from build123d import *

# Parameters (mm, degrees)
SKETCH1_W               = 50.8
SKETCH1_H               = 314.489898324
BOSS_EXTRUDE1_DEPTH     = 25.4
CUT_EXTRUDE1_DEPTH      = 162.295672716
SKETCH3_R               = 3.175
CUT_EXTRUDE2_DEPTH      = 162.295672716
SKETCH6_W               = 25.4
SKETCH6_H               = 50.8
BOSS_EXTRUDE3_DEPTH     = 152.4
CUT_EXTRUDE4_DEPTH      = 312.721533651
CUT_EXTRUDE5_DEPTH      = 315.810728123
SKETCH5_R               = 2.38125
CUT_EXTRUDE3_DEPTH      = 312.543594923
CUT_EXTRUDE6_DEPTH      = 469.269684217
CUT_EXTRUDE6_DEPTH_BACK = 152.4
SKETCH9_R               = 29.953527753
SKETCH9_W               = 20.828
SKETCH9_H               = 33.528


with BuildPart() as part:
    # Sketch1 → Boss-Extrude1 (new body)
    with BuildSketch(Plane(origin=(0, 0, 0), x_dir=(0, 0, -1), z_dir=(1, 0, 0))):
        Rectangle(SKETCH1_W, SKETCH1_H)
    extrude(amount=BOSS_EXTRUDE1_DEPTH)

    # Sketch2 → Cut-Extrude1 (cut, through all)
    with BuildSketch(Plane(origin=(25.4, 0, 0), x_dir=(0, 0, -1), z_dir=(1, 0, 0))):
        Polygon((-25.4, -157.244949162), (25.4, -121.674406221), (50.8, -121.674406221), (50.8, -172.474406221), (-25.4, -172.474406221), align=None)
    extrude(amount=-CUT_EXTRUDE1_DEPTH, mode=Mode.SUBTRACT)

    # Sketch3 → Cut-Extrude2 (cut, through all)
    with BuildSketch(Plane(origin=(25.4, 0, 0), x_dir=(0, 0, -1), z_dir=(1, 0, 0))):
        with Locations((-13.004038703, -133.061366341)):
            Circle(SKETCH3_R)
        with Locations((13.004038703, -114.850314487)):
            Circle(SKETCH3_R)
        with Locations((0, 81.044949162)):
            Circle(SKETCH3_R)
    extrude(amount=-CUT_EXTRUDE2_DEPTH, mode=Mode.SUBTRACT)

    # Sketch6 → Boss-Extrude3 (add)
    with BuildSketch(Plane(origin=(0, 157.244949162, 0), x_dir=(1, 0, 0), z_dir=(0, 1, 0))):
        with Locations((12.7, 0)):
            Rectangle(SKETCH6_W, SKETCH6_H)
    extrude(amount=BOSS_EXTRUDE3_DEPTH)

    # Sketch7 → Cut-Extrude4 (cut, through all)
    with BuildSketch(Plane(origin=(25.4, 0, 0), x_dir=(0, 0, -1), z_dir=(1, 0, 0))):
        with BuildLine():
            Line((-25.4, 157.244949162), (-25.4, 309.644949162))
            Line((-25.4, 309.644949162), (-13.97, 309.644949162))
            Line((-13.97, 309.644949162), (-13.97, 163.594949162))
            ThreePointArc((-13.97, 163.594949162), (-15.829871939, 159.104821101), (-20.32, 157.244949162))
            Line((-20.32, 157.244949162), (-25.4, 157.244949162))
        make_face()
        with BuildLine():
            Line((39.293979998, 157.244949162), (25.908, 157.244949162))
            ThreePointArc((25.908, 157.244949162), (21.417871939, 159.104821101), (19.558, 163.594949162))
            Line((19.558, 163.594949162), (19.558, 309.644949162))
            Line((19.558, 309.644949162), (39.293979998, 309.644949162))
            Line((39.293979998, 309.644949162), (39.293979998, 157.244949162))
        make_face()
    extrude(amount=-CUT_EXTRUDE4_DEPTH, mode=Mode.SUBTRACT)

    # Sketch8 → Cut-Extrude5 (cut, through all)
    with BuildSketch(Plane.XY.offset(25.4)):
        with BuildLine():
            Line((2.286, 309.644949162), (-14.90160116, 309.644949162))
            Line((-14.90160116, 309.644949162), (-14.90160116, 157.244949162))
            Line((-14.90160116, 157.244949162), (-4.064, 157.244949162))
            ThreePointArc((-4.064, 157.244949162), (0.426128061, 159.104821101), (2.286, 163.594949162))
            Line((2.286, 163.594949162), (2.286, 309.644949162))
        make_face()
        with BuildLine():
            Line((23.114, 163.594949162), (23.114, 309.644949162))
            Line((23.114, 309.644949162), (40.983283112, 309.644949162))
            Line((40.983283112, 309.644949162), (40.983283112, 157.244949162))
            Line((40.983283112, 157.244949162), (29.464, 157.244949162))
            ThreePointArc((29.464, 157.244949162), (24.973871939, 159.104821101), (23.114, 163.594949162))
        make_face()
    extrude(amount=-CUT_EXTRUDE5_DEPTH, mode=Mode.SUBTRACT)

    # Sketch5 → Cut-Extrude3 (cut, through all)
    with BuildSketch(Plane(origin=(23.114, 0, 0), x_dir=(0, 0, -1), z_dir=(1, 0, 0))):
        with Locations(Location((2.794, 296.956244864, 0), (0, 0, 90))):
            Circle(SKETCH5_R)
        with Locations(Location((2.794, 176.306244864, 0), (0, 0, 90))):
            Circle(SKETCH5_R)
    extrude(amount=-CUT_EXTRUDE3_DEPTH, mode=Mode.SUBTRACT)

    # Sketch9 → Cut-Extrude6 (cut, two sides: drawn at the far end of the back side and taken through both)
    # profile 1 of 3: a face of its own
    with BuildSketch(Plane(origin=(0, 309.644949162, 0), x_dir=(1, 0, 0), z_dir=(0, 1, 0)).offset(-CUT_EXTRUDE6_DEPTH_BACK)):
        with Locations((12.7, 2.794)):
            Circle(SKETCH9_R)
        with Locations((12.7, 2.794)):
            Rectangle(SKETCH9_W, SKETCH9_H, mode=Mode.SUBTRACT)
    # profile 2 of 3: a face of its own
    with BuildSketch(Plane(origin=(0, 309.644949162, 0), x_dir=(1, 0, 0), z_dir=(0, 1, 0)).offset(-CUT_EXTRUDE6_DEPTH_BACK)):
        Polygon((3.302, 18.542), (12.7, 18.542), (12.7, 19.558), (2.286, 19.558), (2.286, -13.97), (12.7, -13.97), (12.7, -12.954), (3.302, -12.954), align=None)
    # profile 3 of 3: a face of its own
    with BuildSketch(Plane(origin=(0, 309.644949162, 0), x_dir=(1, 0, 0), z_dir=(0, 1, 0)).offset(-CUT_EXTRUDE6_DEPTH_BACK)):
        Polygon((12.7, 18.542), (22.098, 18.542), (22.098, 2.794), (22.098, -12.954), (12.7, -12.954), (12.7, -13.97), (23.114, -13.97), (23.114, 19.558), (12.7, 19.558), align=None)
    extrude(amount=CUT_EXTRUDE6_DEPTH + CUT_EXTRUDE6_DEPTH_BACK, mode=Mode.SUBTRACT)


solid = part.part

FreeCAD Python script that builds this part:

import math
import FreeCAD as App
import Part
import Sketcher

V = App.Vector
Q = App.Units.Quantity


def add_polygon(sketch, points):
    """Adds a closed chain of lines whose ends are joined by coincident constraints."""
    first, n = sketch.GeometryCount, len(points)
    for a, b in zip(points, points[1:] + points[:1]):
        sketch.addGeometry(Part.LineSegment(App.Vector(*a, 0), App.Vector(*b, 0)), False)
    for i in range(n):
        sketch.addConstraint(Sketcher.Constraint("Coincident", first + i, 2, first + (i + 1) % n, 1))

doc = App.newDocument("Part")
body = doc.addObject("PartDesign::Body", "Body")

sketch1 = doc.addObject("Sketcher::SketchObject", "Sketch")
body.addObject(sketch1)
sketch1.AttachmentSupport = (doc.YZ_Plane, [""])
sketch1.MapMode = "FlatFace"
add_polygon(sketch1, [(157, 25), (-157, 25), (-157, -25), (157, -25)])
sketch1.addConstraint(Sketcher.Constraint("Horizontal", 0))
sketch1.addConstraint(Sketcher.Constraint("Vertical", 1))
sketch1.addConstraint(Sketcher.Constraint("Horizontal", 2))
sketch1.addConstraint(Sketcher.Constraint("Vertical", 3))
sketch1.addConstraint(Sketcher.Constraint("Symmetric", 0, 2, 2, 2, -1, 1))
sketch1.addConstraint(Sketcher.Constraint("DistanceY", 1, 2, 1, 1, Q("2 in")))
sketch1.addConstraint(Sketcher.Constraint("DistanceX", 0, 2, 0, 1, 314.489898))
pad1 = doc.addObject("PartDesign::Pad", "Pad")
body.addObject(pad1)
pad1.Profile = sketch1
pad1.Length = Q("1 in")

sketch2 = doc.addObject("Sketcher::SketchObject", "Sketch001")
body.addObject(sketch2)
sketch2.AttachmentSupport = (doc.YZ_Plane, [""])
sketch2.MapMode = "FlatFace"
sketch2.AttachmentOffset = App.Placement(V(0, 0, 1 * 25.4), App.Rotation())
add_polygon(sketch2, [(-122, -25), (-157, 25), (-172, 25), (-172, -51), (-122, -51)])
sketch2.addConstraint(Sketcher.Constraint("Horizontal", 1))
sketch2.addConstraint(Sketcher.Constraint("Vertical", 2))
sketch2.addConstraint(Sketcher.Constraint("Horizontal", 3))
sketch2.addConstraint(Sketcher.Constraint("Vertical", 4))
sketch2.addConstraint(Sketcher.Constraint("DistanceX", 3, 1, 3, 2, Q("2 in")))
sketch2.addConstraint(Sketcher.Constraint("DistanceY", 2, 2, 2, 1, Q("3 in")))
sketch2.addConstraint(Sketcher.Constraint("DistanceY", 4, 1, 4, 2, Q("1 in")))
sketch2.addConstraint(Sketcher.Constraint("DistanceY", -1, 1, 0, 2, Q("1 in")))
sketch2.addConstraint(Sketcher.Constraint("Angle", 0, Q("125 deg")))
sketch2.addConstraint(Sketcher.Constraint("DistanceX", 0, 2, -1, 1, 157.244949))
pocket1 = doc.addObject("PartDesign::Pocket", "Pocket")
body.addObject(pocket1)
pocket1.Profile = sketch2
pocket1.Type = "ThroughAll"

sketch3 = doc.addObject("Sketcher::SketchObject", "Sketch002")
body.addObject(sketch3)
sketch3.AttachmentSupport = (doc.YZ_Plane, [""])
sketch3.MapMode = "FlatFace"
sketch3.AttachmentOffset = App.Placement(V(0, 0, 1 * 25.4), App.Rotation())
sketch3.addGeometry(Part.Circle(V(-133.1, 13, 0), V(0, 0, 1), 3.2), False)
sketch3.addGeometry(Part.Circle(V(-114.9, -13, 0), V(0, 0, 1), 3.2), False)
sketch3.addGeometry(Part.Circle(V(81, 0, 0), V(0, 0, 1), 3.2), False)
sketch3.addConstraint(Sketcher.Constraint("Equal", 0, 1))
sketch3.addConstraint(Sketcher.Constraint("Equal", 1, 2))
sketch3.addConstraint(Sketcher.Constraint("PointOnObject", 2, 3, -1))
sketch3.addConstraint(Sketcher.Constraint("Diameter", 0, Q("0.25 in")))
sketch3.addConstraint(Sketcher.Constraint("DistanceY", -1, 1, 0, 3, 13.004039))
sketch3.addConstraint(Sketcher.Constraint("DistanceY", 1, 3, -1, 1, 13.004039))
sketch3.addConstraint(Sketcher.Constraint("DistanceX", -1, 1, 2, 3, 81.044949))
sketch3.addConstraint(Sketcher.Constraint("DistanceX", 0, 3, 1, 3, 18.211052))
sketch3.addConstraint(Sketcher.Constraint("DistanceX", 0, 3, -1, 1, 133.061366))
pocket2 = doc.addObject("PartDesign::Pocket", "Pocket001")
body.addObject(pocket2)
pocket2.Profile = sketch3
pocket2.Type = "ThroughAll"

sketch4 = doc.addObject("Sketcher::SketchObject", "Sketch003")
body.addObject(sketch4)
sketch4.AttachmentSupport = (doc.XZ_Plane, [""])
sketch4.MapMode = "FlatFace"
sketch4.AttachmentOffset = App.Placement(V(0, 0, -157.244949), App.Rotation())
add_polygon(sketch4, [(0, -25), (0, 25), (25, 25), (25, -25)])
sketch4.addConstraint(Sketcher.Constraint("Vertical", 0))
sketch4.addConstraint(Sketcher.Constraint("Horizontal", 1))
sketch4.addConstraint(Sketcher.Constraint("Vertical", 2))
sketch4.addConstraint(Sketcher.Constraint("Horizontal", 3))
sketch4.addConstraint(Sketcher.Constraint("Symmetric", 0, 2, 3, 2, -1, 1))
sketch4.addConstraint(Sketcher.Constraint("DistanceX", 1, 1, 1, 2, Q("1 in")))
sketch4.addConstraint(Sketcher.Constraint("DistanceY", 0, 1, 0, 2, Q("2 in")))
pad2 = doc.addObject("PartDesign::Pad", "Pad001")
body.addObject(pad2)
pad2.Profile = sketch4
pad2.Length = Q("6 in")
pad2.Reversed = True

sketch5 = doc.addObject("Sketcher::SketchObject", "Sketch004")
body.addObject(sketch5)
sketch5.AttachmentSupport = (doc.YZ_Plane, [""])
sketch5.MapMode = "FlatFace"
sketch5.AttachmentOffset = App.Placement(V(0, 0, 1 * 25.4), App.Rotation())
sketch5.addGeometry(Part.LineSegment(V(310, 25, 0), V(157, 25, 0)), False)
sketch5.addGeometry(Part.LineSegment(V(157, 25, 0), V(157, 20, 0)), False)
sketch5.addGeometry(Part.ArcOfCircle(Part.Circle(V(164, 20, 0), V(0, 0, 1), 6), math.radians(180), math.radians(270)), False)
sketch5.addGeometry(Part.LineSegment(V(164, 14, 0), V(310, 14, 0)), False)
sketch5.addGeometry(Part.LineSegment(V(310, 14, 0), V(310, 25, 0)), False)
sketch5.addGeometry(Part.LineSegment(V(157, -26, 0), V(157, -39, 0)), False)
sketch5.addGeometry(Part.LineSegment(V(157, -39, 0), V(310, -39, 0)), False)
sketch5.addGeometry(Part.LineSegment(V(310, -39, 0), V(310, -20, 0)), False)
sketch5.addGeometry(Part.LineSegment(V(310, -20, 0), V(164, -20, 0)), False)
sketch5.addGeometry(Part.ArcOfCircle(Part.Circle(V(164, -26, 0), V(0, 0, 1), 6), math.radians(90), math.radians(180)), False)
sketch5.addConstraint(Sketcher.Constraint("Coincident", 0, 2, 1, 1))
sketch5.addConstraint(Sketcher.Constraint("Tangent", 1, 2, 2, 1))
sketch5.addConstraint(Sketcher.Constraint("Tangent", 2, 2, 3, 1))
sketch5.addConstraint(Sketcher.Constraint("Coincident", 3, 2, 4, 1))
sketch5.addConstraint(Sketcher.Constraint("Coincident", 4, 2, 0, 1))
sketch5.addConstraint(Sketcher.Constraint("Coincident", 5, 2, 6, 1))
sketch5.addConstraint(Sketcher.Constraint("Coincident", 6, 2, 7, 1))
sketch5.addConstraint(Sketcher.Constraint("Coincident", 7, 2, 8, 1))
sketch5.addConstraint(Sketcher.Constraint("Tangent", 8, 2, 9, 1))
sketch5.addConstraint(Sketcher.Constraint("Tangent", 9, 2, 5, 1))
sketch5.addConstraint(Sketcher.Constraint("Horizontal", 0))
sketch5.addConstraint(Sketcher.Constraint("Vertical", 1))
sketch5.addConstraint(Sketcher.Constraint("Horizontal", 3))
sketch5.addConstraint(Sketcher.Constraint("Vertical", 4))
sketch5.addConstraint(Sketcher.Constraint("Vertical", 5))
sketch5.addConstraint(Sketcher.Constraint("Horizontal", 6))
sketch5.addConstraint(Sketcher.Constraint("Vertical", 7))
sketch5.addConstraint(Sketcher.Constraint("Horizontal", 8))
sketch5.addConstraint(Sketcher.Constraint("Equal", 2, 9))
sketch5.addConstraint(Sketcher.Constraint("Vertical", 2, 3, 9, 3))
sketch5.addConstraint(Sketcher.Constraint("Vertical", 4, 2, 6, 2))
sketch5.addConstraint(Sketcher.Constraint("DistanceX", 0, 2, 0, 1, Q("6 in")))
sketch5.addConstraint(Sketcher.Constraint("Radius", 2, Q("0.25 in")))
sketch5.addConstraint(Sketcher.Constraint("DistanceY", 1, 2, 1, 1, Q("0.2 in")))
sketch5.addConstraint(Sketcher.Constraint("DistanceY", -1, 1, 0, 2, Q("1 in")))
sketch5.addConstraint(Sketcher.Constraint("DistanceY", 9, 3, -1, 1, Q("1.02 in")))
sketch5.addConstraint(Sketcher.Constraint("DistanceY", 5, 2, 5, 1, 13.38598))
sketch5.addConstraint(Sketcher.Constraint("DistanceX", -1, 1, 2, 3, 163.594949))
pocket3 = doc.addObject("PartDesign::Pocket", "Pocket002")
body.addObject(pocket3)
pocket3.Profile = sketch5
pocket3.Type = "ThroughAll"

sketch6 = doc.addObject("Sketcher::SketchObject", "Sketch005")
body.addObject(sketch6)
sketch6.AttachmentSupport = (doc.XY_Plane, [""])
sketch6.MapMode = "FlatFace"
sketch6.AttachmentOffset = App.Placement(V(0, 0, 1 * 25.4), App.Rotation())
sketch6.addGeometry(Part.LineSegment(V(2, 310, 0), V(-15, 310, 0)), False)
sketch6.addGeometry(Part.LineSegment(V(-15, 310, 0), V(-15, 157, 0)), False)
sketch6.addGeometry(Part.LineSegment(V(-15, 157, 0), V(-4, 157, 0)), False)
sketch6.addGeometry(Part.ArcOfCircle(Part.Circle(V(-4, 164, 0), V(0, 0, 1), 6), math.radians(-90), math.radians(0)), False)
sketch6.addGeometry(Part.LineSegment(V(2, 164, 0), V(2, 310, 0)), False)
sketch6.addGeometry(Part.LineSegment(V(23, 310, 0), V(23, 164, 0)), False)
sketch6.addGeometry(Part.ArcOfCircle(Part.Circle(V(29, 164, 0), V(0, 0, 1), 6), math.radians(180), math.radians(270)), False)
sketch6.addGeometry(Part.LineSegment(V(29, 157, 0), V(41, 157, 0)), False)
sketch6.addGeometry(Part.LineSegment(V(41, 157, 0), V(41, 310, 0)), False)
sketch6.addGeometry(Part.LineSegment(V(41, 310, 0), V(23, 310, 0)), False)
sketch6.addConstraint(Sketcher.Constraint("Coincident", 0, 2, 1, 1))
sketch6.addConstraint(Sketcher.Constraint("Coincident", 1, 2, 2, 1))
sketch6.addConstraint(Sketcher.Constraint("Tangent", 2, 2, 3, 1))
sketch6.addConstraint(Sketcher.Constraint("Tangent", 3, 2, 4, 1))
sketch6.addConstraint(Sketcher.Constraint("Coincident", 4, 2, 0, 1))
sketch6.addConstraint(Sketcher.Constraint("Tangent", 5, 2, 6, 1))
sketch6.addConstraint(Sketcher.Constraint("Tangent", 6, 2, 7, 1))
sketch6.addConstraint(Sketcher.Constraint("Coincident", 7, 2, 8, 1))
sketch6.addConstraint(Sketcher.Constraint("Coincident", 8, 2, 9, 1))
sketch6.addConstraint(Sketcher.Constraint("Coincident", 9, 2, 5, 1))
sketch6.addConstraint(Sketcher.Constraint("Horizontal", 0))
sketch6.addConstraint(Sketcher.Constraint("Vertical", 1))
sketch6.addConstraint(Sketcher.Constraint("Horizontal", 2))
sketch6.addConstraint(Sketcher.Constraint("Vertical", 4))
sketch6.addConstraint(Sketcher.Constraint("Vertical", 5))
sketch6.addConstraint(Sketcher.Constraint("Horizontal", 7))
sketch6.addConstraint(Sketcher.Constraint("Vertical", 8))
sketch6.addConstraint(Sketcher.Constraint("Horizontal", 9))
sketch6.addConstraint(Sketcher.Constraint("Equal", 3, 6))
sketch6.addConstraint(Sketcher.Constraint("Horizontal", 3, 3, 6, 3))
sketch6.addConstraint(Sketcher.Constraint("Horizontal", 4, 2, 8, 2))
sketch6.addConstraint(Sketcher.Constraint("DistanceY", 1, 2, 1, 1, Q("6 in")))
sketch6.addConstraint(Sketcher.Constraint("Radius", 3, Q("0.25 in")))
sketch6.addConstraint(Sketcher.Constraint("DistanceX", 3, 3, -1, 1, Q("0.16 in")))
sketch6.addConstraint(Sketcher.Constraint("DistanceX", -1, 1, 6, 3, Q("1.16 in")))
sketch6.addConstraint(Sketcher.Constraint("DistanceX", 0, 2, 0, 1, 17.187601))
sketch6.addConstraint(Sketcher.Constraint("DistanceX", 7, 1, 7, 2, 11.519283))
sketch6.addConstraint(Sketcher.Constraint("DistanceY", -1, 1, 3, 3, 163.594949))
pocket4 = doc.addObject("PartDesign::Pocket", "Pocket003")
body.addObject(pocket4)
pocket4.Profile = sketch6
pocket4.Type = "ThroughAll"

sketch7 = doc.addObject("Sketcher::SketchObject", "Sketch006")
body.addObject(sketch7)
sketch7.AttachmentSupport = (doc.YZ_Plane, [""])
sketch7.MapMode = "FlatFace"
sketch7.AttachmentOffset = App.Placement(V(0, 0, 0.91 * 25.4), App.Rotation())
sketch7.addGeometry(Part.Circle(V(297, -2.8, 0), V(0, 0, 1), 2.4), False)
sketch7.addGeometry(Part.Circle(V(176.3, -2.8, 0), V(0, 0, 1), 2.4), False)
sketch7.addConstraint(Sketcher.Constraint("Equal", 0, 1))
sketch7.addConstraint(Sketcher.Constraint("Horizontal", 0, 3, 1, 3))
sketch7.addConstraint(Sketcher.Constraint("Diameter", 0, Q("0.1875 in")))
sketch7.addConstraint(Sketcher.Constraint("DistanceY", 0, 3, -1, 1, Q("0.11 in")))
sketch7.addConstraint(Sketcher.Constraint("DistanceX", 1, 3, 0, 3, Q("4.75 in")))
sketch7.addConstraint(Sketcher.Constraint("DistanceX", -1, 1, 0, 3, 296.956245))
pocket5 = doc.addObject("PartDesign::Pocket", "Pocket004")
body.addObject(pocket5)
pocket5.Profile = sketch7
pocket5.Type = "ThroughAll"

sketch8 = doc.addObject("Sketcher::SketchObject", "Sketch007")
body.addObject(sketch8)
sketch8.AttachmentSupport = (doc.XZ_Plane, [""])
sketch8.MapMode = "FlatFace"
sketch8.AttachmentOffset = App.Placement(V(0, 0, -309.644949), App.Rotation())
sketch8.addGeometry(Part.Circle(V(13, -3, 0), V(0, 0, 1), 30), False)
add_polygon(sketch8, [(3, -19), (22, -19), (22, 13), (3, 13)])
sketch8.addConstraint(Sketcher.Constraint("Horizontal", 1))
sketch8.addConstraint(Sketcher.Constraint("Vertical", 2))
sketch8.addConstraint(Sketcher.Constraint("Horizontal", 3))
sketch8.addConstraint(Sketcher.Constraint("Vertical", 4))
sketch8.addConstraint(Sketcher.Constraint("DistanceX", 1, 1, 1, 2, Q("0.74 in")))
sketch8.addConstraint(Sketcher.Constraint("DistanceY", 2, 1, 2, 2, Q("1.24 in")))
sketch8.addConstraint(Sketcher.Constraint("DistanceX", -1, 1, 0, 3, Q("0.5 in")))
sketch8.addConstraint(Sketcher.Constraint("DistanceY", 0, 3, -1, 1, Q("0.11 in")))
sketch8.addConstraint(Sketcher.Constraint("DistanceX", -1, 1, 1, 2, Q("0.87 in")))
sketch8.addConstraint(Sketcher.Constraint("DistanceY", 1, 2, -1, 1, Q("0.73 in")))
sketch8.addConstraint(Sketcher.Constraint("Diameter", 0, 59.907056))
pocket6 = doc.addObject("PartDesign::Pocket", "Pocket005")
body.addObject(pocket6)
pocket6.Profile = sketch8
pocket6.Type = "TwoLengths"
pocket6.Length = 469.269684
pocket6.Length2 = Q("6 in")

doc.recompute()
